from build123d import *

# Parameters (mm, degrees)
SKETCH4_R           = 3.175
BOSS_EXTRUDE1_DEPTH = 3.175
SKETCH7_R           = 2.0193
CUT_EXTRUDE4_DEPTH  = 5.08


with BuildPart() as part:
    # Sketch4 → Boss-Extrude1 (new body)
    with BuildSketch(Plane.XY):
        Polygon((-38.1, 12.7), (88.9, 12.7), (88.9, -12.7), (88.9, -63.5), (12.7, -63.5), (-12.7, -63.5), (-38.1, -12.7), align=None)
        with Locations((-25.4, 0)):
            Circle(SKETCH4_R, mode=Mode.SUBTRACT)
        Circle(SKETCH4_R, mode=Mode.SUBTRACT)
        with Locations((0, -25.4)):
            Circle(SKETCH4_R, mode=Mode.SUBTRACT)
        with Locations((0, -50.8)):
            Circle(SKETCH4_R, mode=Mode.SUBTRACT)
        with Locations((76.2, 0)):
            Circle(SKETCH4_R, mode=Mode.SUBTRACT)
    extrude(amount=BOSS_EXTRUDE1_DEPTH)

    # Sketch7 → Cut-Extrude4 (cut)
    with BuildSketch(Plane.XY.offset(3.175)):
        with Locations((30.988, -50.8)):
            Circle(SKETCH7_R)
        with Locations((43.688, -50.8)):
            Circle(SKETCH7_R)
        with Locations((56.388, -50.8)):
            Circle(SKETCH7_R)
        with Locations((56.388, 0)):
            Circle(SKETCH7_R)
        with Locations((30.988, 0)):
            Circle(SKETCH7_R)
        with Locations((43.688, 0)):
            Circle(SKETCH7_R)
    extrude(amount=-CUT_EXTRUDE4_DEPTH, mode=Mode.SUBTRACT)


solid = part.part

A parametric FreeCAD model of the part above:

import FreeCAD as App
import Part
import Sketcher

V = App.Vector
Q = App.Units.Quantity


def add_polygon(sketch, points):
    """Adds a closed chain of lines whose ends are joined by coincident constraints."""
    first, n = sketch.GeometryCount, len(points)
    for a, b in zip(points, points[1:] + points[:1]):
        sketch.addGeometry(Part.LineSegment(App.Vector(*a, 0), App.Vector(*b, 0)), False)
    for i in range(n):
        sketch.addConstraint(Sketcher.Constraint("Coincident", first + i, 2, first + (i + 1) % n, 1))

doc = App.newDocument("Part")
body = doc.addObject("PartDesign::Body", "Body")

# Sketch on XY plane
sketch1 = doc.addObject("Sketcher::SketchObject", "Sketch")
body.addObject(sketch1)
sketch1.AttachmentSupport = (doc.XY_Plane, [""])
sketch1.MapMode = "FlatFace"
add_polygon(sketch1, [(88.9, 12.7), (-38.1, 12.7), (-38.1, -12.7), (-12.7, -63.5), (88.9, -63.5)])  # lines 0-4
sketch1.addGeometry(Part.Circle(V(0, -50.8, 0), V(0, 0, 1), 3.2), False)  # 5
sketch1.addGeometry(Part.Circle(V(76.2, 0, 0), V(0, 0, 1), 3.2), False)  # 6
sketch1.addGeometry(Part.Circle(V(0, -25.4, 0), V(0, 0, 1), 3.2), False)  # 7
sketch1.addGeometry(Part.Circle(V(0, 0, 0), V(0, 0, 1), 3.2), False)  # 8
sketch1.addGeometry(Part.Circle(V(-25.4, 0, 0), V(0, 0, 1), 3.2), False)  # 9
sketch1.addConstraint(Sketcher.Constraint("Horizontal", 0))
sketch1.addConstraint(Sketcher.Constraint("Vertical", 1))
sketch1.addConstraint(Sketcher.Constraint("Horizontal", 3))
sketch1.addConstraint(Sketcher.Constraint("Vertical", 4))
sketch1.addConstraint(Sketcher.Constraint("Coincident", 8, 3, -1, 1))
sketch1.addConstraint(Sketcher.Constraint("Equal", 5, 6))
sketch1.addConstraint(Sketcher.Constraint("Equal", 6, 7))
sketch1.addConstraint(Sketcher.Constraint("Equal", 7, 8))
sketch1.addConstraint(Sketcher.Constraint("Equal", 8, 9))
sketch1.addConstraint(Sketcher.Constraint("PointOnObject", 5, 3, -2))
sketch1.addConstraint(Sketcher.Constraint("PointOnObject", 6, 3, -1))
sketch1.addConstraint(Sketcher.Constraint("PointOnObject", 7, 3, -2))
sketch1.addConstraint(Sketcher.Constraint("PointOnObject", 9, 3, -1))
sketch1.addConstraint(Sketcher.Constraint("Diameter", 5, Q("0.25 in")))
sketch1.addConstraint(Sketcher.Constraint("DistanceX", 0, 2, 0, 1, Q("5 in")))
sketch1.addConstraint(Sketcher.Constraint("DistanceX", 3, 1, 3, 2, Q("4 in")))
sketch1.addConstraint(Sketcher.Constraint("DistanceY", 1, 2, 1, 1, Q("1 in")))
sketch1.addConstraint(Sketcher.Constraint("DistanceY", 4, 1, 4, 2, Q("3 in")))
sketch1.addConstraint(Sketcher.Constraint("DistanceY", 5, 3, -1, 1, Q("2 in")))
sketch1.addConstraint(Sketcher.Constraint("DistanceX", -1, 1, 6, 3, Q("3 in")))
sketch1.addConstraint(Sketcher.Constraint("DistanceY", 7, 3, -1, 1, Q("1 in")))
sketch1.addConstraint(Sketcher.Constraint("DistanceX", 9, 3, -1, 1, Q("1 in")))
sketch1.addConstraint(Sketcher.Constraint("DistanceX", 0, 2, -1, 1, Q("1.5 in")))
sketch1.addConstraint(Sketcher.Constraint("DistanceY", -1, 1, 0, 2, Q("0.5 in")))
pad1 = doc.addObject("PartDesign::Pad", "Pad")
body.addObject(pad1)
pad1.Profile = sketch1
pad1.Length = Q("0.125 in")

# Sketch on XY plane
sketch2 = doc.addObject("Sketcher::SketchObject", "Sketch001")
body.addObject(sketch2)
sketch2.AttachmentSupport = (doc.XY_Plane, [""])
sketch2.MapMode = "FlatFace"
sketch2.AttachmentOffset = App.Placement(V(0, 0, 0.125 * 25.4), App.Rotation())
sketch2.addGeometry(Part.Circle(V(31, -50.8, 0), V(0, 0, 1), 2), False)
sketch2.addGeometry(Part.Circle(V(43.7, -50.8, 0), V(0, 0, 1), 2), False)
sketch2.addGeometry(Part.Circle(V(56.4, -50.8, 0), V(0, 0, 1), 2), False)
sketch2.addGeometry(Part.Circle(V(56.4, 0, 0), V(0, 0, 1), 2), False)
sketch2.addGeometry(Part.Circle(V(31, 0, 0), V(0, 0, 1), 2), False)
sketch2.addGeometry(Part.Circle(V(43.7, 0, 0), V(0, 0, 1), 2), False)
sketch2.addConstraint(Sketcher.Constraint("Equal", 0, 1))
sketch2.addConstraint(Sketcher.Constraint("Equal", 1, 2))
sketch2.addConstraint(Sketcher.Constraint("Equal", 2, 3))
sketch2.addConstraint(Sketcher.Constraint("Equal", 3, 4))
sketch2.addConstraint(Sketcher.Constraint("Equal", 4, 5))
sketch2.addConstraint(Sketcher.Constraint("PointOnObject", 3, 3, -1))
sketch2.addConstraint(Sketcher.Constraint("PointOnObject", 4, 3, -1))
sketch2.addConstraint(Sketcher.Constraint("PointOnObject", 5, 3, -1))
sketch2.addConstraint(Sketcher.Constraint("Horizontal", 0, 3, 1, 3))
sketch2.addConstraint(Sketcher.Constraint("Horizontal", 1, 3, 2, 3))
sketch2.addConstraint(Sketcher.Constraint("Vertical", 2, 3, 3, 3))
sketch2.addConstraint(Sketcher.Constraint("Vertical", 0, 3, 4, 3))
sketch2.addConstraint(Sketcher.Constraint("Vertical", 1, 3, 5, 3))
sketch2.addConstraint(Sketcher.Constraint("Diameter", 0, Q("0.159 in")))
sketch2.addConstraint(Sketcher.Constraint("DistanceY", 0, 3, -1, 1, Q("2 in")))
sketch2.addConstraint(Sketcher.Constraint("DistanceX", 0, 3, 2, 3, Q("1 in")))
sketch2.addConstraint(Sketcher.Constraint("DistanceX", 0, 3, 1, 3, Q("0.5 in")))
sketch2.addConstraint(Sketcher.Constraint("DistanceX", -1, 1, 0, 3, Q("1.22 in")))
pocket1 = doc.addObject("PartDesign::Pocket", "Pocket")
body.addObject(pocket1)
pocket1.Profile = sketch2
pocket1.Length = Q("0.2 in")

doc.recompute()
